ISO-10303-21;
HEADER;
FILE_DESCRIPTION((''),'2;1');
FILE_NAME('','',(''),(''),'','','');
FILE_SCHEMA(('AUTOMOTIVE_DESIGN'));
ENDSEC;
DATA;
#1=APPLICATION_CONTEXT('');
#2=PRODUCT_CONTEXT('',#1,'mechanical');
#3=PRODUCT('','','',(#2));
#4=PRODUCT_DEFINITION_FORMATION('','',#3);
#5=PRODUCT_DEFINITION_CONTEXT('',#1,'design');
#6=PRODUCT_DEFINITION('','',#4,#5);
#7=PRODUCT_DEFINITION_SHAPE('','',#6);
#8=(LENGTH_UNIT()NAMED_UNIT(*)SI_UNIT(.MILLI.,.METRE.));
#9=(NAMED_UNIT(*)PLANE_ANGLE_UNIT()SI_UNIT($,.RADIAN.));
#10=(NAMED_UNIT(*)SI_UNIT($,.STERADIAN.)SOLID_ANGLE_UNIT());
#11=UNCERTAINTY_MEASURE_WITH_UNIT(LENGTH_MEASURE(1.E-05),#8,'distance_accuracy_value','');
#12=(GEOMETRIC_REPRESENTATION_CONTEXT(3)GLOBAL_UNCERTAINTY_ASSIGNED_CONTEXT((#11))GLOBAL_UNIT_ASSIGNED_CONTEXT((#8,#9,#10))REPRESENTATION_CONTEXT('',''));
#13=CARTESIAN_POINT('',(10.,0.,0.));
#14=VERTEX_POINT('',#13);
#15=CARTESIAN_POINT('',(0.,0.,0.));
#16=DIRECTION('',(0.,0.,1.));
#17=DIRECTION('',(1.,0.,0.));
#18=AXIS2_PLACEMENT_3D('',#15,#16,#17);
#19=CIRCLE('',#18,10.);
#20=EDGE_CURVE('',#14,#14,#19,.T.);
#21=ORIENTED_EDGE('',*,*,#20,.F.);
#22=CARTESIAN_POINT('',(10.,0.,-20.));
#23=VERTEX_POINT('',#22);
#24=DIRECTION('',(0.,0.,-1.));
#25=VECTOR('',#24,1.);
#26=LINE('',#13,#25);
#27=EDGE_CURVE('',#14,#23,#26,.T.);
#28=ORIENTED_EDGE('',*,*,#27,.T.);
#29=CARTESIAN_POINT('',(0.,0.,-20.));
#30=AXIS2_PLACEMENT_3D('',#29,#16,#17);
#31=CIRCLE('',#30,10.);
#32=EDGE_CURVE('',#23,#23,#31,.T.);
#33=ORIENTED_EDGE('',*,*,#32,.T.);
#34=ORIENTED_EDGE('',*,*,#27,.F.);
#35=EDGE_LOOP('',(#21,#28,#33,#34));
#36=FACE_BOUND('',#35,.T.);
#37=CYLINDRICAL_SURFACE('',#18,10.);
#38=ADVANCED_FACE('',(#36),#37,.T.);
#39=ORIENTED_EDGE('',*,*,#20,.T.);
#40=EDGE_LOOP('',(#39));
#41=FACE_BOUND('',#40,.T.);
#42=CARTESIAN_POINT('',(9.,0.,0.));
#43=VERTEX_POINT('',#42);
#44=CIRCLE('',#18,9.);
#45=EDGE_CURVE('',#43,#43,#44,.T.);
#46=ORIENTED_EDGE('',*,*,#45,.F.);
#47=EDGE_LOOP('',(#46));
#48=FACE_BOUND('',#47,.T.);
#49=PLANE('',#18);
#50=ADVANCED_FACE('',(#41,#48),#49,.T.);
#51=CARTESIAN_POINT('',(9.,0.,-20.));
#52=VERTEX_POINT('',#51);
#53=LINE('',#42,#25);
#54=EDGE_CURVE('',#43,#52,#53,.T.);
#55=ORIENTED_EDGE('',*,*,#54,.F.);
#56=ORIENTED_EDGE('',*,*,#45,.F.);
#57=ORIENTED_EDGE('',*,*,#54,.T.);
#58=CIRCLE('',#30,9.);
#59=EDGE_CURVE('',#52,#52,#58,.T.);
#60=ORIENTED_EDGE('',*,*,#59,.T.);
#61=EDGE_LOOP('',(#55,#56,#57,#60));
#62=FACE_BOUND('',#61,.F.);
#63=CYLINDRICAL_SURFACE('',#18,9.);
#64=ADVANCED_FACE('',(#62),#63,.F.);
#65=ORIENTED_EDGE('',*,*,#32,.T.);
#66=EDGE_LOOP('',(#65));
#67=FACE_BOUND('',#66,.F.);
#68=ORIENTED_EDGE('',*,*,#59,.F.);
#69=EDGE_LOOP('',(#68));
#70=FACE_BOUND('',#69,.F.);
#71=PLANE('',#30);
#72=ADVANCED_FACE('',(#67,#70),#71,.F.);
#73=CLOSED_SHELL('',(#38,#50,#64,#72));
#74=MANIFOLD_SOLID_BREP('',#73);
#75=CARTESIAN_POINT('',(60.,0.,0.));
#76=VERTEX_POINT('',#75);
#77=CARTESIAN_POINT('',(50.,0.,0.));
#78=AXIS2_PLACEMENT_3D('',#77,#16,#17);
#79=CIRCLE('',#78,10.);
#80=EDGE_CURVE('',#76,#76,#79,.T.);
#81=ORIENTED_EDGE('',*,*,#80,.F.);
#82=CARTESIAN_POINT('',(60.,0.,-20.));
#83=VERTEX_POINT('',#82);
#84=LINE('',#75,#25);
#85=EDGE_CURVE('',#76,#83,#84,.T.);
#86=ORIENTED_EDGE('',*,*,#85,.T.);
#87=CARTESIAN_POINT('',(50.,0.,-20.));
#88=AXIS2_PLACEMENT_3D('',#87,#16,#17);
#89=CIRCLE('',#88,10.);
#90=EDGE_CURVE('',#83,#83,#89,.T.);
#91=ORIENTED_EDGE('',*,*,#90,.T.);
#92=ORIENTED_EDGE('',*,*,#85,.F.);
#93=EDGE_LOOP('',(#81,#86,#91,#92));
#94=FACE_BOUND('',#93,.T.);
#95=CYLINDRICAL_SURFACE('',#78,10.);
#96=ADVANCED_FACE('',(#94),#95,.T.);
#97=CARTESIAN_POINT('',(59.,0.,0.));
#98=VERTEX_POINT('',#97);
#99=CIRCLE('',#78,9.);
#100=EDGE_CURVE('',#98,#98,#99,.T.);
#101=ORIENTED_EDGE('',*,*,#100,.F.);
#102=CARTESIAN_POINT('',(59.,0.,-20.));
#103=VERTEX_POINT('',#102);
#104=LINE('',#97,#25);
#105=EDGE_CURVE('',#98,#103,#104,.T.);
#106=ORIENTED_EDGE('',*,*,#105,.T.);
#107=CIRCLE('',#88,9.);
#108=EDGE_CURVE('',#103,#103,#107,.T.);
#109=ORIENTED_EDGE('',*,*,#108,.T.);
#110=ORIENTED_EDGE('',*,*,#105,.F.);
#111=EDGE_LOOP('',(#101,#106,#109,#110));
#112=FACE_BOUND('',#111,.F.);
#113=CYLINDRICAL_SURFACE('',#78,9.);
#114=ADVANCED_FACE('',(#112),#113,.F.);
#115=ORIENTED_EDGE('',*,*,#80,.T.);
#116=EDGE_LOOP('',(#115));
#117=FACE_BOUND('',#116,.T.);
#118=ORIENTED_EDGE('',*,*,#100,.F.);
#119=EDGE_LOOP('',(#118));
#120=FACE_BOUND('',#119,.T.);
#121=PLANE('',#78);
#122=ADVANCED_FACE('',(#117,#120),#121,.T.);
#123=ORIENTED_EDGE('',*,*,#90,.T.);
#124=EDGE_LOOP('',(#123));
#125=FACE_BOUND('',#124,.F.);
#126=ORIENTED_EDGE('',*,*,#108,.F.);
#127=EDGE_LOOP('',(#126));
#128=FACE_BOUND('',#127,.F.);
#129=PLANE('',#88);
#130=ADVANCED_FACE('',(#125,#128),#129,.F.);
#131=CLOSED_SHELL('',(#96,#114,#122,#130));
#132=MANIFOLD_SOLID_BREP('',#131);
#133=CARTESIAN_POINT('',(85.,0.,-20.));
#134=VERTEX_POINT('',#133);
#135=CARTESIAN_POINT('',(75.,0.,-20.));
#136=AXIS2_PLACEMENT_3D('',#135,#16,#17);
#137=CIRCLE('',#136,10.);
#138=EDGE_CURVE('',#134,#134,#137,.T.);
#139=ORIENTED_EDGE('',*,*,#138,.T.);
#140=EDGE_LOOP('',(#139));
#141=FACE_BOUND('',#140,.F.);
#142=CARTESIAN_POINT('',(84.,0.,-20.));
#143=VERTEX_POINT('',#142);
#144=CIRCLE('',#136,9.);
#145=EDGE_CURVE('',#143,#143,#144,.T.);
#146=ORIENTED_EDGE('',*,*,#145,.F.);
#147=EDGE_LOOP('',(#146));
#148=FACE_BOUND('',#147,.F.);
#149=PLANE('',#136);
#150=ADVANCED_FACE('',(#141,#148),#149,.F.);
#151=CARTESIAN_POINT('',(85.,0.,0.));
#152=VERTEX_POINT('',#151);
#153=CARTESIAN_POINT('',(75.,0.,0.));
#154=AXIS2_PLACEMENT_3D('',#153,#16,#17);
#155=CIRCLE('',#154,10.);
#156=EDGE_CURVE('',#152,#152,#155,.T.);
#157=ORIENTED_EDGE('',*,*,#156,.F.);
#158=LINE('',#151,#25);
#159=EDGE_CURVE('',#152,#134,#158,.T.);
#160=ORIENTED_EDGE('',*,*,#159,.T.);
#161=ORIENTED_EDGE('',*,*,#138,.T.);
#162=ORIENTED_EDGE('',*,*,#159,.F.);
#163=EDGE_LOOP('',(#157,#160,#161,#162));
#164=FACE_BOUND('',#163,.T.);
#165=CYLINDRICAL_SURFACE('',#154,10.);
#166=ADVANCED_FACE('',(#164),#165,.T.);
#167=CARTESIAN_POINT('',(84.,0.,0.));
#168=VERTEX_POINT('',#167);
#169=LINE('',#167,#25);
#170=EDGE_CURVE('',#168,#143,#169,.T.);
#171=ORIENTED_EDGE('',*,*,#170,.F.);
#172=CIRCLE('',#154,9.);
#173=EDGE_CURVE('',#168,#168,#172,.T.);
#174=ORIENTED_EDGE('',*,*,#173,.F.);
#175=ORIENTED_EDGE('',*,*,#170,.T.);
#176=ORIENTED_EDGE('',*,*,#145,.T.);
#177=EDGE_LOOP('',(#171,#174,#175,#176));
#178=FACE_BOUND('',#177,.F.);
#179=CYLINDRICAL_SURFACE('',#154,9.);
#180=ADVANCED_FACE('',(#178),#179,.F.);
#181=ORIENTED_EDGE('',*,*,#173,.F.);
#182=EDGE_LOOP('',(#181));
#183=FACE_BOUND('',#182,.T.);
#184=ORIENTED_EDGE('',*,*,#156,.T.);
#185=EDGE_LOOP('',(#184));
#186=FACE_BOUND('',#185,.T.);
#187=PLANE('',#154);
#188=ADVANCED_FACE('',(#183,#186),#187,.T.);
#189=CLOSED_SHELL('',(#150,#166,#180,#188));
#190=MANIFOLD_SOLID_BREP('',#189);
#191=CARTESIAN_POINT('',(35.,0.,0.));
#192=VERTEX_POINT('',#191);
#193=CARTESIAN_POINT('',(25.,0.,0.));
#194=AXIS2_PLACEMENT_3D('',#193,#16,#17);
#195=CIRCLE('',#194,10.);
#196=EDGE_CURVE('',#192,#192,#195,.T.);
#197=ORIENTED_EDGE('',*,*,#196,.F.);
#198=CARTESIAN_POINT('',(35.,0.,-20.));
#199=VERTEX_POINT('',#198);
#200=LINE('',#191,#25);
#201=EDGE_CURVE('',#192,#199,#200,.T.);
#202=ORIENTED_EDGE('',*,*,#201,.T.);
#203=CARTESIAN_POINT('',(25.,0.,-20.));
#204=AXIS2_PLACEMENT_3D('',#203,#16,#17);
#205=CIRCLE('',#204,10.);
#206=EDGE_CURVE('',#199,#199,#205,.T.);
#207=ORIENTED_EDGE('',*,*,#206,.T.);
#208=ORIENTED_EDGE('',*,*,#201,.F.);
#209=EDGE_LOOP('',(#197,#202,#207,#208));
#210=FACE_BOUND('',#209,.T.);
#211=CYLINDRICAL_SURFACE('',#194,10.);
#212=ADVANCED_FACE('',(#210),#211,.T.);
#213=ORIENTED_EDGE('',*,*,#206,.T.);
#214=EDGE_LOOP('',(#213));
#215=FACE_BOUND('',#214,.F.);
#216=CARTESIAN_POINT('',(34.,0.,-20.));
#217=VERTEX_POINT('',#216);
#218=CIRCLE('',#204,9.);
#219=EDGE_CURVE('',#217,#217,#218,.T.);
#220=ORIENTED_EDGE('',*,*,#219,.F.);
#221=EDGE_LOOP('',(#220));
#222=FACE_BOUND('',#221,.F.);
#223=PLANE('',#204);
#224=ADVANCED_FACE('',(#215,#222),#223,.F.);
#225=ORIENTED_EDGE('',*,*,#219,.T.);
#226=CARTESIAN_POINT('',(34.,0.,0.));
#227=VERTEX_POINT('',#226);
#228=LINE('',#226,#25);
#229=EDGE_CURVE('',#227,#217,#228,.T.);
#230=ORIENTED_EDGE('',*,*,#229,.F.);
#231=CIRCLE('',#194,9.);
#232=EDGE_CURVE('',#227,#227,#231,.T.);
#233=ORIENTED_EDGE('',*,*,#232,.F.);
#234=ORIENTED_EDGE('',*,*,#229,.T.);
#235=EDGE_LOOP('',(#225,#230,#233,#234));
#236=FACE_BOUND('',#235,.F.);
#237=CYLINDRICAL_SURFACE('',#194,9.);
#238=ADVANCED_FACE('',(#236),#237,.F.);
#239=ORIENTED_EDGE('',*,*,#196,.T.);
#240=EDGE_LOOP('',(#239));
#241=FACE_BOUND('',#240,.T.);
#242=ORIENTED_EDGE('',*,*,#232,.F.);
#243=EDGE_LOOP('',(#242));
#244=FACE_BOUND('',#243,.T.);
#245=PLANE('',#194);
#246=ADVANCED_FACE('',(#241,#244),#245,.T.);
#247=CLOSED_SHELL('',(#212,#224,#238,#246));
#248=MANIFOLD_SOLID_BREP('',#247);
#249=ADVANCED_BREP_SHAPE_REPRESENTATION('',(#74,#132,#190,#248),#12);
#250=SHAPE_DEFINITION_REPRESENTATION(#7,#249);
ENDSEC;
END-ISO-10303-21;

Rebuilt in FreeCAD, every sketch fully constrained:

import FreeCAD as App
import Part
import Sketcher

V = App.Vector
Q = App.Units.Quantity

doc = App.newDocument("Part")
body = doc.addObject("PartDesign::Body", "Body")
body.AllowCompound = True

# Sketch on XY plane
sketch1 = doc.addObject("Sketcher::SketchObject", "Sketch")
body.addObject(sketch1)
sketch1.AttachmentSupport = (doc.XY_Plane, [""])
sketch1.MapMode = "FlatFace"
sketch1.addGeometry([
    Part.Circle(V(0, 0, 0), V(0, 0, 1), 10),  # 0
    Part.Circle(V(0, 0, 0), V(0, 0, 1), 9),  # 1
    Part.Circle(V(25, 0, 0), V(0, 0, 1), 10),  # 2
    Part.Circle(V(25, 0, 0), V(0, 0, 1), 9),  # 3
    Part.Circle(V(50, 0, 0), V(0, 0, 1), 10),  # 4
    Part.Circle(V(50, 0, 0), V(0, 0, 1), 9),  # 5
    Part.Circle(V(75, 0, 0), V(0, 0, 1), 10),  # 6
    Part.Circle(V(75, 0, 0), V(0, 0, 1), 9),  # 7
], False)
sketch1.addConstraint([
    Sketcher.Constraint("Coincident", 0, 3, -1, 1),
    Sketcher.Constraint("Coincident", 1, 3, -1, 1),
    Sketcher.Constraint("Coincident", 3, 3, 2, 3),
    Sketcher.Constraint("Coincident", 5, 3, 4, 3),
    Sketcher.Constraint("Coincident", 7, 3, 6, 3),
    Sketcher.Constraint("Equal", 0, 2),
    Sketcher.Constraint("Equal", 1, 3),
    Sketcher.Constraint("Equal", 2, 4),
    Sketcher.Constraint("Equal", 3, 5),
    Sketcher.Constraint("Equal", 4, 6),
    Sketcher.Constraint("Equal", 5, 7),
    Sketcher.Constraint("PointOnObject", 2, 3, -1),
    Sketcher.Constraint("PointOnObject", 4, 3, -1),
    Sketcher.Constraint("PointOnObject", 6, 3, -1),
    Sketcher.Constraint("Diameter", 0, Q("20 mm")),
    Sketcher.Constraint("Diameter", 1, Q("18 mm")),
    Sketcher.Constraint("DistanceX", -1, 1, 2, 3, Q("25 mm")),
    Sketcher.Constraint("DistanceX", -1, 1, 4, 3, Q("50 mm")),
    Sketcher.Constraint("DistanceX", -1, 1, 6, 3, Q("75 mm")),
])
pad1 = doc.addObject("PartDesign::Pad", "Pad")
body.addObject(pad1)
pad1.Profile = sketch1
pad1.Length = 20
pad1.Reversed = True

doc.recompute()
